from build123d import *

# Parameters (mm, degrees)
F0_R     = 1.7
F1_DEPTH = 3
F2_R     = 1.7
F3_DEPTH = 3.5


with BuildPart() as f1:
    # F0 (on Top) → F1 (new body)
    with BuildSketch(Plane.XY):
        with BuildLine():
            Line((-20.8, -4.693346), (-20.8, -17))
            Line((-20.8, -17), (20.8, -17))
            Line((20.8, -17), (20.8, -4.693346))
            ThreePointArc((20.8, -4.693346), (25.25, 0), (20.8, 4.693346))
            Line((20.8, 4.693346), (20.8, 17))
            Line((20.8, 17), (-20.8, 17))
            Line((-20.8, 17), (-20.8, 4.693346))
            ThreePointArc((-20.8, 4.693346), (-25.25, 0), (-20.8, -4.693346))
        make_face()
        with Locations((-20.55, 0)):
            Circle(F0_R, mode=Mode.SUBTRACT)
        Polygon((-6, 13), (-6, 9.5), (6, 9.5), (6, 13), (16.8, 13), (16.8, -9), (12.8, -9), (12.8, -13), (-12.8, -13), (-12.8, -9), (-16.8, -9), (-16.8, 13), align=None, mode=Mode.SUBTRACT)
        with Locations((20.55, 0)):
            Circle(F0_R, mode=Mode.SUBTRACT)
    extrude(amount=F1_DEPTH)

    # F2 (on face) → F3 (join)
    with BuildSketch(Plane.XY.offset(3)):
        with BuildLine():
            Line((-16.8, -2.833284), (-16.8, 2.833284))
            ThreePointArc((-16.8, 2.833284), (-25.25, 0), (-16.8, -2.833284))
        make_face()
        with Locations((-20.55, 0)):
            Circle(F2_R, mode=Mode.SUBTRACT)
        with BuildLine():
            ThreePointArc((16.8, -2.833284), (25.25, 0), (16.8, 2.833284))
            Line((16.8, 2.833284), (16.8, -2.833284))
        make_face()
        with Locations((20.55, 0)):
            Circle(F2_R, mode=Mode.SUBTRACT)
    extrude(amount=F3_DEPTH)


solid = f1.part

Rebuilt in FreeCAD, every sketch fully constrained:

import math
import FreeCAD as App
import Part
import Sketcher

V = App.Vector


def add_polygon(sketch, points):
    """Adds a closed chain of lines whose ends are joined by coincident constraints."""
    first, n = sketch.GeometryCount, len(points)
    for a, b in zip(points, points[1:] + points[:1]):
        sketch.addGeometry(Part.LineSegment(App.Vector(*a, 0), App.Vector(*b, 0)), False)
    for i in range(n):
        sketch.addConstraint(Sketcher.Constraint("Coincident", first + i, 2, first + (i + 1) % n, 1))

doc = App.newDocument("Part")
body = doc.addObject("PartDesign::Body", "Body")

sketch1 = doc.addObject("Sketcher::SketchObject", "Sketch")
body.addObject(sketch1)
sketch1.AttachmentSupport = (doc.XY_Plane, [""])
sketch1.MapMode = "FlatFace"
sketch1.addGeometry(Part.LineSegment(V(-20.8, -4.7, 0), V(-20.8, -17, 0)), False)
sketch1.addGeometry(Part.LineSegment(V(-20.8, -17, 0), V(20.8, -17, 0)), False)
sketch1.addGeometry(Part.LineSegment(V(20.8, -17, 0), V(20.8, -4.7, 0)), False)
sketch1.addGeometry(Part.ArcOfCircle(Part.Circle(V(20.6, 0, 0), V(0, 0, 1), 4.7), math.radians(-87), math.radians(87)), False)
sketch1.addGeometry(Part.LineSegment(V(20.8, 4.7, 0), V(20.8, 17, 0)), False)
sketch1.addGeometry(Part.LineSegment(V(20.8, 17, 0), V(-20.8, 17, 0)), False)
sketch1.addGeometry(Part.LineSegment(V(-20.8, 17, 0), V(-20.8, 4.7, 0)), False)
sketch1.addGeometry(Part.ArcOfCircle(Part.Circle(V(-20.6, 0, 0), V(0, 0, 1), 4.7), math.radians(93), math.radians(267)), False)
sketch1.addGeometry(Part.Circle(V(-20.6, 0, 0), V(0, 0, 1), 1.7), False)
add_polygon(sketch1, [(-16.8, 13), (-6, 13), (-6, 9.5), (6, 9.5), (6, 13), (16.8, 13), (16.8, -9), (12.8, -9), (12.8, -13), (-12.8, -13), (-12.8, -9), (-16.8, -9)])
sketch1.addGeometry(Part.Circle(V(20.6, 0, 0), V(0, 0, 1), 1.7), False)
sketch1.addConstraint([
    Sketcher.Constraint("Coincident", 0, 2, 1, 1),
    Sketcher.Constraint("Coincident", 1, 2, 2, 1),
    Sketcher.Constraint("Coincident", 2, 2, 3, 1),
    Sketcher.Constraint("Coincident", 3, 2, 4, 1),
    Sketcher.Constraint("Coincident", 4, 2, 5, 1),
    Sketcher.Constraint("Coincident", 5, 2, 6, 1),
    Sketcher.Constraint("Coincident", 6, 2, 7, 1),
    Sketcher.Constraint("Coincident", 7, 2, 0, 1),
    Sketcher.Constraint("Vertical", 0),
    Sketcher.Constraint("Horizontal", 1),
    Sketcher.Constraint("Vertical", 2),
    Sketcher.Constraint("Vertical", 4),
    Sketcher.Constraint("Horizontal", 5),
    Sketcher.Constraint("Vertical", 6),
    Sketcher.Constraint("Horizontal", 9),
    Sketcher.Constraint("Vertical", 10),
    Sketcher.Constraint("Horizontal", 11),
    Sketcher.Constraint("Vertical", 12),
    Sketcher.Constraint("Horizontal", 13),
    Sketcher.Constraint("Vertical", 14),
    Sketcher.Constraint("Horizontal", 15),
    Sketcher.Constraint("Vertical", 16),
    Sketcher.Constraint("Horizontal", 17),
    Sketcher.Constraint("Vertical", 18),
    Sketcher.Constraint("Horizontal", 19),
    Sketcher.Constraint("Vertical", 20),
    Sketcher.Constraint("Coincident", 8, 3, 7, 3),
    Sketcher.Constraint("Coincident", 21, 3, 3, 3),
    Sketcher.Constraint("Equal", 3, 7),
    Sketcher.Constraint("Equal", 8, 21),
    Sketcher.Constraint("Symmetric", 3, 3, 7, 3, -1, 1),
    Sketcher.Constraint("Symmetric", 0, 2, 4, 2, -1, 1),
    Sketcher.Constraint("Symmetric", 3, 2, 6, 2, -2),
    Sketcher.Constraint("Symmetric", 9, 2, 12, 2, -2),
    Sketcher.Constraint("Symmetric", 15, 2, 18, 2, -2),
    Sketcher.Constraint("Horizontal", 2, 2, 7, 2),
    Sketcher.Constraint("Equal", 9, 13),
    Sketcher.Constraint("Equal", 19, 16),
    Sketcher.Constraint("Diameter", 8, 3.4),
    Sketcher.Constraint("Radius", 3, 4.7),
    Sketcher.Constraint("DistanceX", 11, 1, 11, 2, 12.0),
    Sketcher.Constraint("DistanceX", 15, 2, 15, 1, 4.0),
    Sketcher.Constraint("DistanceY", 14, 2, 14, 1, 22.0),
    Sketcher.Constraint("DistanceX", 1, 1, 1, 2, 41.6),
    Sketcher.Constraint("DistanceX", 9, 1, 9, 2, 10.8),
    Sketcher.Constraint("DistanceY", 10, 2, 10, 1, 3.5),
    Sketcher.Constraint("DistanceY", 0, 2, -1, 1, 17.0),
    Sketcher.Constraint("DistanceY", -1, 1, 9, 2, 13.0),
    Sketcher.Constraint("DistanceX", 7, 3, 3, 3, 41.100001),
])
pad1 = doc.addObject("PartDesign::Pad", "Pad")
body.addObject(pad1)
pad1.Profile = sketch1
pad1.Length = 3

sketch2 = doc.addObject("Sketcher::SketchObject", "Sketch001")
body.addObject(sketch2)
sketch2.AttachmentSupport = (doc.XY_Plane, [""])
sketch2.MapMode = "FlatFace"
sketch2.AttachmentOffset = App.Placement(V(0, 0, 3), App.Rotation())
sketch2.addGeometry([
    Part.LineSegment(V(-16.8, -2.8, 0), V(-16.8, 2.8, 0)),
    Part.ArcOfCircle(Part.Circle(V(-20.6, 0, 0), V(0, 0, 1), 4.7), math.radians(37), math.radians(323)),
    Part.Circle(V(-20.6, 0, 0), V(0, 0, 1), 1.7),
    Part.ArcOfCircle(Part.Circle(V(20.6, 0, 0), V(0, 0, 1), 4.7), math.radians(-143), math.radians(143)),
    Part.LineSegment(V(16.8, 2.8, 0), V(16.8, -2.8, 0)),
    Part.Circle(V(20.6, 0, 0), V(0, 0, 1), 1.7),
], False)
sketch2.addConstraint([
    Sketcher.Constraint("Coincident", 0, 1, 1, 2),
    Sketcher.Constraint("Coincident", 1, 1, 0, 2),
    Sketcher.Constraint("Coincident", 3, 1, 4, 2),
    Sketcher.Constraint("Coincident", 4, 1, 3, 2),
    Sketcher.Constraint("Vertical", 0),
    Sketcher.Constraint("Vertical", 4),
    Sketcher.Constraint("Coincident", 2, 3, 1, 3),
    Sketcher.Constraint("Coincident", 5, 3, 3, 3),
    Sketcher.Constraint("Equal", 1, 3),
    Sketcher.Constraint("Equal", 2, 5),
    Sketcher.Constraint("Symmetric", 1, 3, 3, 3, -1, 1),
    Sketcher.Constraint("Symmetric", 0, 1, 3, 1, -2),
    Sketcher.Constraint("Diameter", 2, 3.4),
    Sketcher.Constraint("Radius", 1, 4.7),
    Sketcher.Constraint("DistanceX", 0, 1, -1, 1, 16.8),
    Sketcher.Constraint("DistanceX", 2, 3, 3, 3, 41.1),
])
pad2 = doc.addObject("PartDesign::Pad", "Pad001")
body.addObject(pad2)
pad2.Profile = sketch2
pad2.Length = 3.5

doc.recompute()
